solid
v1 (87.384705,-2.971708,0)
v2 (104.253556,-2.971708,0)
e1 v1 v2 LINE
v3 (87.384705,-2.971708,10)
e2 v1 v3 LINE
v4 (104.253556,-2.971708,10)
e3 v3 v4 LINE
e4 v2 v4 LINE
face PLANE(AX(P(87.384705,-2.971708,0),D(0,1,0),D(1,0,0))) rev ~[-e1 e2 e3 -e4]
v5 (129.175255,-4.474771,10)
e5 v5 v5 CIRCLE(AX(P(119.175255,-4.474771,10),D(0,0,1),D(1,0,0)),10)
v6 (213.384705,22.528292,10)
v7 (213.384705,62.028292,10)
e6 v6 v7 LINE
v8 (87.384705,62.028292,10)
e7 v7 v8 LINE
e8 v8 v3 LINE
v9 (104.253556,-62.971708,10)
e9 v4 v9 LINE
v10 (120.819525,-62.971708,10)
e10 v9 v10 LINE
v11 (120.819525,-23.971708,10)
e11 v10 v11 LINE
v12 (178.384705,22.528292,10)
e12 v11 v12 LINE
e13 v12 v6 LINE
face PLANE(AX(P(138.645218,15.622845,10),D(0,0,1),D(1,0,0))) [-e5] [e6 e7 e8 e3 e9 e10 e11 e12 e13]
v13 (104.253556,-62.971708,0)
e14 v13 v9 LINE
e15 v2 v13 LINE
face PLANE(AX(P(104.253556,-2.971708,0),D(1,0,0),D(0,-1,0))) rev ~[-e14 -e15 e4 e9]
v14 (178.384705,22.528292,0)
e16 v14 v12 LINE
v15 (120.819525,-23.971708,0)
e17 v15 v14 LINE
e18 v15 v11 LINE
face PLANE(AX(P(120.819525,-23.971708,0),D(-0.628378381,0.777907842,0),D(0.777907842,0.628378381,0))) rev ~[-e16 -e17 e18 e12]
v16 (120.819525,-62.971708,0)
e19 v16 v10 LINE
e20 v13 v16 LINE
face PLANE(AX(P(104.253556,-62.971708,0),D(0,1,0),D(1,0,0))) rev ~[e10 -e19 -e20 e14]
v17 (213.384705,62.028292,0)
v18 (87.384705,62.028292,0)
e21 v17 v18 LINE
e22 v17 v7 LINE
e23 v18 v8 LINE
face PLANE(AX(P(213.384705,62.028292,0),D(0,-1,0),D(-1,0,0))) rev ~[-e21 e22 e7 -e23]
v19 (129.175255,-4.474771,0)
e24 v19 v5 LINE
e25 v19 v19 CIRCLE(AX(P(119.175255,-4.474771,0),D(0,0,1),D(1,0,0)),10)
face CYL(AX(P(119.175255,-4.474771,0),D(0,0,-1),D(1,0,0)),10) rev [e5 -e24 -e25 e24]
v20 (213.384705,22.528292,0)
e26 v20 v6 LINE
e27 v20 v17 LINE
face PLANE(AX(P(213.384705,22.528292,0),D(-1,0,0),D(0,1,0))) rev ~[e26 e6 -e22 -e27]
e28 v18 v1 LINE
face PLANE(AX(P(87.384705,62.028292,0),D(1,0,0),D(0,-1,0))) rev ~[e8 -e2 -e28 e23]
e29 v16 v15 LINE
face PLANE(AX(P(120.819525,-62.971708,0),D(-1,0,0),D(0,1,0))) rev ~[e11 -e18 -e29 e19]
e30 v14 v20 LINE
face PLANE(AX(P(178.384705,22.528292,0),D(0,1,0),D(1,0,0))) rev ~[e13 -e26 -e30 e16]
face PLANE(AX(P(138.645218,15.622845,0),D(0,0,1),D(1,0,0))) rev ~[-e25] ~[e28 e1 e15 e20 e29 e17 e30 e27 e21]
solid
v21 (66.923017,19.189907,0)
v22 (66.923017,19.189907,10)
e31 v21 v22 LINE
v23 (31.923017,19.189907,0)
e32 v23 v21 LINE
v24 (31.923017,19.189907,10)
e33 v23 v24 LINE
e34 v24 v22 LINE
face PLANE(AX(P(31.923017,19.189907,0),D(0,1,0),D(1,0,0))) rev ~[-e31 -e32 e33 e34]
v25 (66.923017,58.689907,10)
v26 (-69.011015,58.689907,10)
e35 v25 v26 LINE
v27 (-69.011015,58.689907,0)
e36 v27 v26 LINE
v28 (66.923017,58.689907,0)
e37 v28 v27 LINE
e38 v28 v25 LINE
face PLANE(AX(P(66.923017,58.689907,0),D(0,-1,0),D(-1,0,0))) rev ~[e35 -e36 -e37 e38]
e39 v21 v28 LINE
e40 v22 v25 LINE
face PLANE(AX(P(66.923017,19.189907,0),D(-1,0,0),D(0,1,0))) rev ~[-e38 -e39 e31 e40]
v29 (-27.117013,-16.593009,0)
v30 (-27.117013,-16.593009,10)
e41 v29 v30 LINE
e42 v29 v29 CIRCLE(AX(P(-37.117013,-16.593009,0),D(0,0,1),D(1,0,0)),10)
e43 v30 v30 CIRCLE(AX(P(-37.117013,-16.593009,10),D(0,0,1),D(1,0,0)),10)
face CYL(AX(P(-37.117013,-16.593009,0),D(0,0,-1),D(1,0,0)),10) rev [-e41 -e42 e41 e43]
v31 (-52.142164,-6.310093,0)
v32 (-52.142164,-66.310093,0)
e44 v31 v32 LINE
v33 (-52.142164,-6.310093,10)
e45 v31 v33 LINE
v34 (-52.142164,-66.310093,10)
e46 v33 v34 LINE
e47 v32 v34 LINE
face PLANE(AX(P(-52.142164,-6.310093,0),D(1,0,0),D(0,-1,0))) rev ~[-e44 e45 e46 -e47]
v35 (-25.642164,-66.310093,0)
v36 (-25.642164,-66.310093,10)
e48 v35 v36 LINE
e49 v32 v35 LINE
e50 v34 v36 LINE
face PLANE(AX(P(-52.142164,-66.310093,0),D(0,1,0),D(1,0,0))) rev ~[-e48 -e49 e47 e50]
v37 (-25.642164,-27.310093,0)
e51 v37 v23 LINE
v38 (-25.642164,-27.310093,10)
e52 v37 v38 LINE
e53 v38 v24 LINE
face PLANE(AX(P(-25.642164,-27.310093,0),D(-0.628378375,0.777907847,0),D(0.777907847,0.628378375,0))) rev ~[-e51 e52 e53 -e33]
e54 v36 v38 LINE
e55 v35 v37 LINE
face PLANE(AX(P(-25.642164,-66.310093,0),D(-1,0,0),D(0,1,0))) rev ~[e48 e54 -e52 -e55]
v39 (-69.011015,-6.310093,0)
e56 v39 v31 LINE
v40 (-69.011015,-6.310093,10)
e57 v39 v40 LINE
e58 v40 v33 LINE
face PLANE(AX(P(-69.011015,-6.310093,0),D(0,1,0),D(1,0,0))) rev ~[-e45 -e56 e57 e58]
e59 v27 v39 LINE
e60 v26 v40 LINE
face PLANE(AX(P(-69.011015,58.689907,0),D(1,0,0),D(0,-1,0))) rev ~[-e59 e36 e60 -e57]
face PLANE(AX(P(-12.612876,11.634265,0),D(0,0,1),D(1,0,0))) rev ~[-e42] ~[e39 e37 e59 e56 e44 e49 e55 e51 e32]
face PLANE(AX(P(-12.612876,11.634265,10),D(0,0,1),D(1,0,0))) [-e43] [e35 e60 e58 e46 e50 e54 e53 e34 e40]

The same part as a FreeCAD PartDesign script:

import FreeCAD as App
import Part
import Sketcher

doc = App.newDocument("Part")
params = doc.addObject("Spreadsheet::Sheet", "Params")
for row, (alias, value) in enumerate([
    ("sketch1_diameter", "20 mm"),
    ("sketch1_width", "35 mm"),
    ("sketch1_height", "65 mm"),
    ("sketch1_height2", "60 mm"),
    ("sketch1_height3", "39 mm"),
    ("pad1_length", "10 mm"),
    ("sketch2_diameter", "20 mm"),
    ("sketch2_width", "126 mm"),
    ("sketch2_width2", "35 mm"),
    ("sketch2_height", "65 mm"),
    ("sketch2_height2", "60 mm"),
    ("pad2_length", "10 mm"),
], start=1):
    params.set(f"A{row}", alias)
    params.set(f"B{row}", "=" + value)
    params.setAlias(f"B{row}", alias)

body = doc.addObject("PartDesign::Body", "Body")

sketch1 = body.newObject("Sketcher::SketchObject", "Sketch")
sketch1.AttachmentSupport = (doc.getObject("XY_Plane"), [""])
sketch1.MapMode = "FlatFace"
sketch1.addGeometry(Part.LineSegment(App.Vector(66.923017, 58.689907, 0), App.Vector(-69.011015, 58.689907, 0)), False)
sketch1.addGeometry(Part.LineSegment(App.Vector(-69.011015, 58.689907, 0), App.Vector(-69.011015, -6.310093, 0)), False)
sketch1.addGeometry(Part.LineSegment(App.Vector(-69.011015, -6.310093, 0), App.Vector(-52.142164, -6.310093, 0)), False)
sketch1.addGeometry(Part.LineSegment(App.Vector(-52.142164, -6.310093, 0), App.Vector(-52.142164, -66.310093, 0)), False)
sketch1.addGeometry(Part.LineSegment(App.Vector(-52.142164, -66.310093, 0), App.Vector(-25.642164, -66.310093, 0)), False)
sketch1.addGeometry(Part.LineSegment(App.Vector(-25.642164, -66.310093, 0), App.Vector(-25.642164, -27.310093, 0)), False)
sketch1.addGeometry(Part.LineSegment(App.Vector(-25.642164, -27.310093, 0), App.Vector(31.923017, 19.189907, 0)), False)
sketch1.addGeometry(Part.LineSegment(App.Vector(31.923017, 19.189907, 0), App.Vector(66.923017, 19.189907, 0)), False)
sketch1.addGeometry(Part.LineSegment(App.Vector(66.923017, 19.189907, 0), App.Vector(66.923017, 58.689907, 0)), False)
sketch1.addGeometry(Part.Circle(App.Vector(-37.117013, -16.593009, 0), App.Vector(0, 0, 1), 10), False)
sketch1.addConstraint(Sketcher.Constraint("Coincident", 0, 2, 1, 1))
sketch1.addConstraint(Sketcher.Constraint("Coincident", 1, 2, 2, 1))
sketch1.addConstraint(Sketcher.Constraint("Coincident", 2, 2, 3, 1))
sketch1.addConstraint(Sketcher.Constraint("Coincident", 3, 2, 4, 1))
sketch1.addConstraint(Sketcher.Constraint("Coincident", 4, 2, 5, 1))
sketch1.addConstraint(Sketcher.Constraint("Coincident", 5, 2, 6, 1))
sketch1.addConstraint(Sketcher.Constraint("Coincident", 6, 2, 7, 1))
sketch1.addConstraint(Sketcher.Constraint("Coincident", 7, 2, 8, 1))
sketch1.addConstraint(Sketcher.Constraint("Coincident", 8, 2, 0, 1))
sketch1.addConstraint(Sketcher.Constraint("Horizontal", 0))
sketch1.addConstraint(Sketcher.Constraint("Vertical", 1))
sketch1.addConstraint(Sketcher.Constraint("Horizontal", 2))
sketch1.addConstraint(Sketcher.Constraint("Vertical", 3))
sketch1.addConstraint(Sketcher.Constraint("Horizontal", 4))
sketch1.addConstraint(Sketcher.Constraint("Vertical", 5))
sketch1.addConstraint(Sketcher.Constraint("Horizontal", 7))
sketch1.addConstraint(Sketcher.Constraint("Vertical", 8))
sketch1.addConstraint(Sketcher.Constraint("Diameter", 9, 20.0))
sketch1.addConstraint(Sketcher.Constraint("DistanceX", 7, 1, 7, 2, 35.0))
sketch1.addConstraint(Sketcher.Constraint("DistanceY", 1, 2, 1, 1, 65.0))
sketch1.addConstraint(Sketcher.Constraint("DistanceY", 3, 2, 3, 1, 60.0))
sketch1.addConstraint(Sketcher.Constraint("DistanceY", 5, 1, 5, 2, 39.0))
sketch1.addConstraint(Sketcher.Constraint("Distance", 6, 74.0))
sketch1.addConstraint(Sketcher.Constraint("DistanceX", 4, 1, 4, 2, 26.5))
sketch1.addConstraint(Sketcher.Constraint("DistanceY", 8, 1, 8, 2, 39.5))
sketch1.addConstraint(Sketcher.Constraint("DistanceX", 0, 2, 0, 1, 135.934032))
sketch1.addConstraint(Sketcher.Constraint("DistanceY", 9, 3, -1, 1, 16.593009))
sketch1.addConstraint(Sketcher.Constraint("DistanceX", 2, 2, 9, 3, 15.025151))
sketch1.addConstraint(Sketcher.Constraint("DistanceX", 9, 3, -1, 1, 37.117013))
sketch1.addConstraint(Sketcher.Constraint("DistanceY", -1, 1, 0, 2, 58.689907))
sketch1.setExpression("Constraints[17]", "Params.sketch1_diameter")
sketch1.setExpression("Constraints[18]", "Params.sketch1_width")
sketch1.setExpression("Constraints[19]", "Params.sketch1_height")
sketch1.setExpression("Constraints[20]", "Params.sketch1_height2")
sketch1.setExpression("Constraints[21]", "Params.sketch1_height3")
pad1 = body.newObject("PartDesign::Pad", "Pad")
pad1.Profile = sketch1
pad1.setExpression("Length", "Params.pad1_length")
body2 = doc.addObject("PartDesign::Body", "Body001")

sketch2 = body2.newObject("Sketcher::SketchObject", "Sketch001")
sketch2.AttachmentSupport = (doc.getObject("XY_Plane001"), [""])
sketch2.MapMode = "FlatFace"
sketch2.addGeometry(Part.LineSegment(App.Vector(213.384705, 62.028292, 0), App.Vector(87.384705, 62.028292, 0)), False)
sketch2.addGeometry(Part.LineSegment(App.Vector(87.384705, 62.028292, 0), App.Vector(87.384705, -2.971708, 0)), False)
sketch2.addGeometry(Part.LineSegment(App.Vector(87.384705, -2.971708, 0), App.Vector(104.253556, -2.971708, 0)), False)
sketch2.addGeometry(Part.LineSegment(App.Vector(104.253556, -2.971708, 0), App.Vector(104.253556, -62.971708, 0)), False)
sketch2.addGeometry(Part.LineSegment(App.Vector(104.253556, -62.971708, 0), App.Vector(120.819525, -62.971708, 0)), False)
sketch2.addGeometry(Part.LineSegment(App.Vector(120.819525, -62.971708, 0), App.Vector(120.819525, -23.971708, 0)), False)
sketch2.addGeometry(Part.LineSegment(App.Vector(120.819525, -23.971708, 0), App.Vector(178.384705, 22.528292, 0)), False)
sketch2.addGeometry(Part.LineSegment(App.Vector(178.384705, 22.528292, 0), App.Vector(213.384705, 22.528292, 0)), False)
sketch2.addGeometry(Part.LineSegment(App.Vector(213.384705, 22.528292, 0), App.Vector(213.384705, 62.028292, 0)), False)
sketch2.addGeometry(Part.Circle(App.Vector(119.175255, -4.474771, 0), App.Vector(0, 0, 1), 10), False)
sketch2.addConstraint(Sketcher.Constraint("Coincident", 0, 2, 1, 1))
sketch2.addConstraint(Sketcher.Constraint("Coincident", 1, 2, 2, 1))
sketch2.addConstraint(Sketcher.Constraint("Coincident", 2, 2, 3, 1))
sketch2.addConstraint(Sketcher.Constraint("Coincident", 3, 2, 4, 1))
sketch2.addConstraint(Sketcher.Constraint("Coincident", 4, 2, 5, 1))
sketch2.addConstraint(Sketcher.Constraint("Coincident", 5, 2, 6, 1))
sketch2.addConstraint(Sketcher.Constraint("Coincident", 6, 2, 7, 1))
sketch2.addConstraint(Sketcher.Constraint("Coincident", 7, 2, 8, 1))
sketch2.addConstraint(Sketcher.Constraint("Coincident", 8, 2, 0, 1))
sketch2.addConstraint(Sketcher.Constraint("Horizontal", 0))
sketch2.addConstraint(Sketcher.Constraint("Vertical", 1))
sketch2.addConstraint(Sketcher.Constraint("Horizontal", 2))
sketch2.addConstraint(Sketcher.Constraint("Vertical", 3))
sketch2.addConstraint(Sketcher.Constraint("Horizontal", 4))
sketch2.addConstraint(Sketcher.Constraint("Vertical", 5))
sketch2.addConstraint(Sketcher.Constraint("Horizontal", 7))
sketch2.addConstraint(Sketcher.Constraint("Vertical", 8))
sketch2.addConstraint(Sketcher.Constraint("Diameter", 9, 20.0))
sketch2.addConstraint(Sketcher.Constraint("DistanceX", 0, 2, 0, 1, 126.0))
sketch2.addConstraint(Sketcher.Constraint("DistanceX", 7, 1, 7, 2, 35.0))
sketch2.addConstraint(Sketcher.Constraint("DistanceY", 1, 2, 1, 1, 65.0))
sketch2.addConstraint(Sketcher.Constraint("DistanceY", 3, 2, 3, 1, 60.0))
sketch2.addConstraint(Sketcher.Constraint("DistanceY", 5, 1, 5, 2, 39.0))
sketch2.addConstraint(Sketcher.Constraint("Distance", 6, 74.0))
sketch2.addConstraint(Sketcher.Constraint("DistanceY", 8, 1, 8, 2, 39.5))
sketch2.addConstraint(Sketcher.Constraint("DistanceX", 2, 1, 2, 2, 16.868851))
sketch2.addConstraint(Sketcher.Constraint("DistanceX", 2, 2, 9, 3, 14.921699))
sketch2.addConstraint(Sketcher.Constraint("DistanceY", 9, 3, -1, 1, 4.474771))
sketch2.addConstraint(Sketcher.Constraint("DistanceY", 1, 2, -1, 1, 2.971708))
sketch2.addConstraint(Sketcher.Constraint("DistanceX", -1, 1, 9, 3, 119.175255))
sketch2.setExpression("Constraints[17]", "Params.sketch2_diameter")
sketch2.setExpression("Constraints[18]", "Params.sketch2_width")
sketch2.setExpression("Constraints[19]", "Params.sketch2_width2")
sketch2.setExpression("Constraints[20]", "Params.sketch2_height")
sketch2.setExpression("Constraints[21]", "Params.sketch2_height2")
pad2 = body2.newObject("PartDesign::Pad", "Pad001")
pad2.Profile = sketch2
pad2.setExpression("Length", "Params.pad2_length")

doc.recompute()
